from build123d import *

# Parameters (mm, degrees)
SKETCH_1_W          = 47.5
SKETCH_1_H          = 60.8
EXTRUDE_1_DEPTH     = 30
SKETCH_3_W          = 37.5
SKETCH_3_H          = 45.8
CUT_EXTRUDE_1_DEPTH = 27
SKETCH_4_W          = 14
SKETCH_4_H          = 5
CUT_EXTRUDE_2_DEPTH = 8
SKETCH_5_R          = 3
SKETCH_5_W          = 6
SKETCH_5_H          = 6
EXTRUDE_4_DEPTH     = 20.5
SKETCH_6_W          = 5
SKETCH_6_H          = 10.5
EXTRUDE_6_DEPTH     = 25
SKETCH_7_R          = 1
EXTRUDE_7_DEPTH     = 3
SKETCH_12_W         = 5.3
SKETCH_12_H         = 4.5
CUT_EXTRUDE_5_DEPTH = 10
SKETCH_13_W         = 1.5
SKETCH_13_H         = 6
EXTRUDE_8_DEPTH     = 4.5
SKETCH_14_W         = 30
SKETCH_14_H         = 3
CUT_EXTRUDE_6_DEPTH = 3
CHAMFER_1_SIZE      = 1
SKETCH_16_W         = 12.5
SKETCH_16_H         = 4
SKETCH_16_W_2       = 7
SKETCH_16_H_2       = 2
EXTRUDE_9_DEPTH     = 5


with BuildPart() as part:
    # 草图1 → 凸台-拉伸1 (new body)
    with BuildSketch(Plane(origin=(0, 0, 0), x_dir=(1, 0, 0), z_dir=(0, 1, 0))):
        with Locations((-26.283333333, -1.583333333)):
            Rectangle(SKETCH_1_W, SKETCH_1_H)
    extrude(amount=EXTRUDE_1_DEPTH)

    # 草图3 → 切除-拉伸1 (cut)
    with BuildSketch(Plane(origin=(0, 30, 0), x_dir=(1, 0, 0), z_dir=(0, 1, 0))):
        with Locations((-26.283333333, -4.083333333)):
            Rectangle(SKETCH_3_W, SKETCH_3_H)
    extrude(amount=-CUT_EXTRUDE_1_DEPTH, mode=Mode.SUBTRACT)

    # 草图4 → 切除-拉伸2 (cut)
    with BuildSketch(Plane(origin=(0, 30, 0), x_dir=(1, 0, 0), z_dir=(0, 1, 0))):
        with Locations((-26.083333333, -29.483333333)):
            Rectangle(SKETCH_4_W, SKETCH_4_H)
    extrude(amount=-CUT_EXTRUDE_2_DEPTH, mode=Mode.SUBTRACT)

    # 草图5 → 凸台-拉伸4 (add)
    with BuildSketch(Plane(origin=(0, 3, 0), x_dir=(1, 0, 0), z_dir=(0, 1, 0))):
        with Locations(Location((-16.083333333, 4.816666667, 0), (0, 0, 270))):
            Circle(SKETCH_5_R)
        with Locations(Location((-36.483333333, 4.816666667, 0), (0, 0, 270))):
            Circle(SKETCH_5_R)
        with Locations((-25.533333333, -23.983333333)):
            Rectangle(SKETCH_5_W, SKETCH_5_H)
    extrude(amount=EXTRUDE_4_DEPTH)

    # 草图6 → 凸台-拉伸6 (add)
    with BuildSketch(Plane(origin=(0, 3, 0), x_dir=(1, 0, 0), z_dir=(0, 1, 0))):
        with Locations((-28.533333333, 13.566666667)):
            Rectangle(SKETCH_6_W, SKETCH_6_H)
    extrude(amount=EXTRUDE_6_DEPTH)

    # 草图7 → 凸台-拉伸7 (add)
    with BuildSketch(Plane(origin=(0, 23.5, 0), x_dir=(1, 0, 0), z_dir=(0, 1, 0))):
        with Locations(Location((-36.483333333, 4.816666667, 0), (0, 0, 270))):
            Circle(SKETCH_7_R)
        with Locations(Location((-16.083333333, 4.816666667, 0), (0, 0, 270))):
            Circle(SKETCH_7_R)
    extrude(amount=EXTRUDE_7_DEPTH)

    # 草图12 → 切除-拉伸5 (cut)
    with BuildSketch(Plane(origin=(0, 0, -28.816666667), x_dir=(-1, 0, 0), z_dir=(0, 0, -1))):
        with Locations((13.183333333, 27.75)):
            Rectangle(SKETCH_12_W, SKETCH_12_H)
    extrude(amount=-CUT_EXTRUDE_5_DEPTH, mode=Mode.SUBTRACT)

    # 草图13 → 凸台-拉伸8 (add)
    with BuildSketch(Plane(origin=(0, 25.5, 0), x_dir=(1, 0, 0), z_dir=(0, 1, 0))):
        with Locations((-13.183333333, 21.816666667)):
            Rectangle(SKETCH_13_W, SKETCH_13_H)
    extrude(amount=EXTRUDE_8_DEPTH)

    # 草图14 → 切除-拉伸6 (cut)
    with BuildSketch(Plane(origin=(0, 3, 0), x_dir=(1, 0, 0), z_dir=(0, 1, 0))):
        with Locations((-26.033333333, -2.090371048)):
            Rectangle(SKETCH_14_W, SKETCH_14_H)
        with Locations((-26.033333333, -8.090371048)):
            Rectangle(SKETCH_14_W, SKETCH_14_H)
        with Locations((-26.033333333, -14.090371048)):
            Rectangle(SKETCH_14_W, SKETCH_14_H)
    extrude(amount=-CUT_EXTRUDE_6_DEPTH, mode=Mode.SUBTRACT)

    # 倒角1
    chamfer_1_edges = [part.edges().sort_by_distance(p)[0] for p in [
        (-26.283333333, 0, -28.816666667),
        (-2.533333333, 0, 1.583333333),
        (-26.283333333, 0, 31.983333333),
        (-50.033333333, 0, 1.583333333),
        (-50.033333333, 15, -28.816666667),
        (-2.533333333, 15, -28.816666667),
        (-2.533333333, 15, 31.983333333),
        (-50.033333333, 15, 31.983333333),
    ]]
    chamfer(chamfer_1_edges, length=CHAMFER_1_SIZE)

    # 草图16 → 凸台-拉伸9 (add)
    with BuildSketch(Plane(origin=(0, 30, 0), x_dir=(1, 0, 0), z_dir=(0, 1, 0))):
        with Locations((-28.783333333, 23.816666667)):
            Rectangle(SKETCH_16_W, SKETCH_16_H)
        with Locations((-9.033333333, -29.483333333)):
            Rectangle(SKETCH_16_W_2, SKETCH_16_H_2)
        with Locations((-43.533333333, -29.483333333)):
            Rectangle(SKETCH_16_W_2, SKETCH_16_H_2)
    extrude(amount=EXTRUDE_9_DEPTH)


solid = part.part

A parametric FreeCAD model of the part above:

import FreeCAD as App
import Part
import Sketcher
from FreeCAD import Vector
Q = App.Units.Quantity


def edges_at(feature, points):
    """Names of the edges that pass closest to the given points."""
    edges = feature.Shape.Edges
    near = lambda p: min(range(len(edges)), key=lambda i: edges[i].distToShape(Part.Vertex(*p))[0])
    return sorted({f"Edge{near(p) + 1}" for p in points})

doc = App.newDocument("Part")
body = doc.addObject("PartDesign::Body", "Body")

sketch1 = body.newObject("Sketcher::SketchObject", "Sketch")
sketch1.AttachmentSupport = (doc.getObject("XZ_Plane"), [""])
sketch1.MapMode = "FlatFace"
sketch1.addGeometry([
    Part.LineSegment(Vector(-50, -29, 0), Vector(-50, 32, 0)),
    Part.LineSegment(Vector(-50, 32, 0), Vector(-3, 32, 0)),
    Part.LineSegment(Vector(-3, 32, 0), Vector(-3, -29, 0)),
    Part.LineSegment(Vector(-3, -29, 0), Vector(-50, -29, 0)),
], False)
sketch1.addConstraint([
    Sketcher.Constraint("Coincident", 0, 2, 1, 1),
    Sketcher.Constraint("Coincident", 1, 2, 2, 1),
    Sketcher.Constraint("Coincident", 2, 2, 3, 1),
    Sketcher.Constraint("Coincident", 3, 2, 0, 1),
    Sketcher.Constraint("Vertical", 0),
    Sketcher.Constraint("Horizontal", 1),
    Sketcher.Constraint("Vertical", 2),
    Sketcher.Constraint("Horizontal", 3),
    Sketcher.Constraint("DistanceX", 1, 1, 1, 2, Q("47.5 mm")),
    Sketcher.Constraint("DistanceY", 0, 1, 0, 2, Q("60.8 mm")),
    Sketcher.Constraint("DistanceX", 0, 2, -1, 1, Q("50.033333 mm")),
    Sketcher.Constraint("DistanceY", -1, 1, 0, 2, Q("31.983333 mm")),
])
pad1 = body.newObject("PartDesign::Pad", "Pad")
pad1.Profile = sketch1
pad1.Length = 30
pad1.Reversed = True

sketch2 = body.newObject("Sketcher::SketchObject", "Sketch001")
sketch2.AttachmentSupport = (doc.getObject("XZ_Plane"), [""])
sketch2.MapMode = "FlatFace"
sketch2.AttachmentOffset = App.Placement(Vector(0, 0, -30), App.Rotation())
sketch2.addGeometry([
    Part.LineSegment(Vector(-45, -19, 0), Vector(-45, 27, 0)),
    Part.LineSegment(Vector(-45, 27, 0), Vector(-8, 27, 0)),
    Part.LineSegment(Vector(-8, 27, 0), Vector(-8, -19, 0)),
    Part.LineSegment(Vector(-8, -19, 0), Vector(-45, -19, 0)),
], False)
sketch2.addConstraint([
    Sketcher.Constraint("Coincident", 0, 2, 1, 1),
    Sketcher.Constraint("Coincident", 1, 2, 2, 1),
    Sketcher.Constraint("Coincident", 2, 2, 3, 1),
    Sketcher.Constraint("Coincident", 3, 2, 0, 1),
    Sketcher.Constraint("Vertical", 0),
    Sketcher.Constraint("Horizontal", 1),
    Sketcher.Constraint("Vertical", 2),
    Sketcher.Constraint("Horizontal", 3),
    Sketcher.Constraint("DistanceX", 1, 1, 1, 2, Q("37.5 mm")),
    Sketcher.Constraint("DistanceY", 0, 1, 0, 2, Q("45.8 mm")),
    Sketcher.Constraint("DistanceX", 0, 2, -1, 1, Q("45.033333 mm")),
    Sketcher.Constraint("DistanceY", -1, 1, 0, 2, Q("26.983333 mm")),
])
pocket1 = body.newObject("PartDesign::Pocket", "Pocket")
pocket1.Profile = sketch2
pocket1.Length = 27
pocket1.Reversed = True

sketch3 = body.newObject("Sketcher::SketchObject", "Sketch002")
sketch3.AttachmentSupport = (doc.getObject("XZ_Plane"), [""])
sketch3.MapMode = "FlatFace"
sketch3.AttachmentOffset = App.Placement(Vector(0, 0, -30), App.Rotation())
sketch3.addGeometry([
    Part.LineSegment(Vector(-33, 27, 0), Vector(-33, 32, 0)),
    Part.LineSegment(Vector(-33, 32, 0), Vector(-19, 32, 0)),
    Part.LineSegment(Vector(-19, 32, 0), Vector(-19, 27, 0)),
    Part.LineSegment(Vector(-19, 27, 0), Vector(-33, 27, 0)),
], False)
sketch3.addConstraint([
    Sketcher.Constraint("Coincident", 0, 2, 1, 1),
    Sketcher.Constraint("Coincident", 1, 2, 2, 1),
    Sketcher.Constraint("Coincident", 2, 2, 3, 1),
    Sketcher.Constraint("Coincident", 3, 2, 0, 1),
    Sketcher.Constraint("Vertical", 0),
    Sketcher.Constraint("Horizontal", 1),
    Sketcher.Constraint("Vertical", 2),
    Sketcher.Constraint("Horizontal", 3),
    Sketcher.Constraint("DistanceX", 1, 1, 1, 2, Q("14 mm")),
    Sketcher.Constraint("DistanceY", 0, 1, 0, 2, Q("5 mm")),
    Sketcher.Constraint("DistanceX", 0, 2, -1, 1, Q("33.083333 mm")),
    Sketcher.Constraint("DistanceY", -1, 1, 0, 2, Q("31.983333 mm")),
])
pocket2 = body.newObject("PartDesign::Pocket", "Pocket001")
pocket2.Profile = sketch3
pocket2.Length = 8
pocket2.Reversed = True

sketch4 = body.newObject("Sketcher::SketchObject", "Sketch003")
sketch4.AttachmentSupport = (doc.getObject("XZ_Plane"), [""])
sketch4.MapMode = "FlatFace"
sketch4.AttachmentOffset = App.Placement(Vector(0, 0, -3), App.Rotation())
sketch4.addGeometry([
    Part.Circle(Vector(-16.1, -4.8, 0), Vector(0, 0, 1), 3),
    Part.Circle(Vector(-36.5, -4.8, 0), Vector(0, 0, 1), 3),
    Part.LineSegment(Vector(-28.5, 21, 0), Vector(-28.5, 27, 0)),
    Part.LineSegment(Vector(-28.5, 27, 0), Vector(-22.5, 27, 0)),
    Part.LineSegment(Vector(-22.5, 27, 0), Vector(-22.5, 21, 0)),
    Part.LineSegment(Vector(-22.5, 21, 0), Vector(-28.5, 21, 0)),
], False)
sketch4.addConstraint([
    Sketcher.Constraint("Coincident", 2, 2, 3, 1),
    Sketcher.Constraint("Coincident", 3, 2, 4, 1),
    Sketcher.Constraint("Coincident", 4, 2, 5, 1),
    Sketcher.Constraint("Coincident", 5, 2, 2, 1),
    Sketcher.Constraint("Vertical", 2),
    Sketcher.Constraint("Horizontal", 3),
    Sketcher.Constraint("Vertical", 4),
    Sketcher.Constraint("Horizontal", 5),
    Sketcher.Constraint("Equal", 0, 1),
    Sketcher.Constraint("Horizontal", 0, 3, 1, 3),
    Sketcher.Constraint("Equal", 5, 2),
    Sketcher.Constraint("Diameter", 0, Q("6 mm")),
    Sketcher.Constraint("DistanceX", 3, 1, 3, 2, Q("6 mm")),
    Sketcher.Constraint("DistanceX", 1, 3, 0, 3, Q("20.4 mm")),
    Sketcher.Constraint("DistanceY", 1, 3, 2, 2, Q("31.8 mm")),
    Sketcher.Constraint("DistanceX", 1, 3, 2, 2, Q("7.95 mm")),
    Sketcher.Constraint("DistanceX", 0, 3, -1, 1, Q("16.083333 mm")),
    Sketcher.Constraint("DistanceY", 0, 3, -1, 1, Q("4.816667 mm")),
])
pad2 = body.newObject("PartDesign::Pad", "Pad001")
pad2.Profile = sketch4
pad2.Length = 20.5
pad2.Reversed = True

sketch5 = body.newObject("Sketcher::SketchObject", "Sketch004")
sketch5.AttachmentSupport = (doc.getObject("XZ_Plane"), [""])
sketch5.MapMode = "FlatFace"
sketch5.AttachmentOffset = App.Placement(Vector(0, 0, -3), App.Rotation())
sketch5.addGeometry([
    Part.LineSegment(Vector(-31, -19, 0), Vector(-31, -8, 0)),
    Part.LineSegment(Vector(-31, -8, 0), Vector(-26, -8, 0)),
    Part.LineSegment(Vector(-26, -8, 0), Vector(-26, -19, 0)),
    Part.LineSegment(Vector(-26, -19, 0), Vector(-31, -19, 0)),
], False)
sketch5.addConstraint([
    Sketcher.Constraint("Coincident", 0, 2, 1, 1),
    Sketcher.Constraint("Coincident", 1, 2, 2, 1),
    Sketcher.Constraint("Coincident", 2, 2, 3, 1),
    Sketcher.Constraint("Coincident", 3, 2, 0, 1),
    Sketcher.Constraint("Vertical", 0),
    Sketcher.Constraint("Horizontal", 1),
    Sketcher.Constraint("Vertical", 2),
    Sketcher.Constraint("Horizontal", 3),
    Sketcher.Constraint("DistanceX", 1, 1, 1, 2, Q("5 mm")),
    Sketcher.Constraint("DistanceY", 0, 1, 0, 2, Q("10.5 mm")),
    Sketcher.Constraint("DistanceX", 0, 2, -1, 1, Q("31.033333 mm")),
    Sketcher.Constraint("DistanceY", 0, 2, -1, 1, Q("8.316667 mm")),
])
pad3 = body.newObject("PartDesign::Pad", "Pad002")
pad3.Profile = sketch5
pad3.Length = 25
pad3.Reversed = True

sketch6 = body.newObject("Sketcher::SketchObject", "Sketch005")
sketch6.AttachmentSupport = (doc.getObject("XZ_Plane"), [""])
sketch6.MapMode = "FlatFace"
sketch6.AttachmentOffset = App.Placement(Vector(0, 0, -23.5), App.Rotation())
sketch6.addGeometry([
    Part.Circle(Vector(-36.5, -4.8, 0), Vector(0, 0, 1), 1),
    Part.Circle(Vector(-16.1, -4.8, 0), Vector(0, 0, 1), 1),
], False)
sketch6.addConstraint([
    Sketcher.Constraint("Equal", 0, 1),
    Sketcher.Constraint("Horizontal", 0, 3, 1, 3),
    Sketcher.Constraint("Diameter", 0, Q("2 mm")),
    Sketcher.Constraint("DistanceX", 0, 3, 1, 3, Q("20.4 mm")),
    Sketcher.Constraint("DistanceX", 0, 3, -1, 1, Q("36.483333 mm")),
    Sketcher.Constraint("DistanceY", 0, 3, -1, 1, Q("4.816667 mm")),
])
pad4 = body.newObject("PartDesign::Pad", "Pad003")
pad4.Profile = sketch6
pad4.Length = 3
pad4.Reversed = True

sketch7 = body.newObject("Sketcher::SketchObject", "Sketch006")
sketch7.AttachmentSupport = (doc.getObject("XY_Plane"), [""])
sketch7.MapMode = "FlatFace"
sketch7.AttachmentOffset = App.Placement(Vector(0, 0, -28.816667), App.Rotation())
sketch7.addGeometry([
    Part.LineSegment(Vector(-10.5, 30, 0), Vector(-10.5, 25.5, 0)),
    Part.LineSegment(Vector(-10.5, 25.5, 0), Vector(-15.8, 25.5, 0)),
    Part.LineSegment(Vector(-15.8, 25.5, 0), Vector(-15.8, 30, 0)),
    Part.LineSegment(Vector(-15.8, 30, 0), Vector(-10.5, 30, 0)),
], False)
sketch7.addConstraint([
    Sketcher.Constraint("Coincident", 0, 2, 1, 1),
    Sketcher.Constraint("Coincident", 1, 2, 2, 1),
    Sketcher.Constraint("Coincident", 2, 2, 3, 1),
    Sketcher.Constraint("Coincident", 3, 2, 0, 1),
    Sketcher.Constraint("Vertical", 0),
    Sketcher.Constraint("Horizontal", 1),
    Sketcher.Constraint("Vertical", 2),
    Sketcher.Constraint("Horizontal", 3),
    Sketcher.Constraint("DistanceX", 1, 2, 1, 1, Q("5.3 mm")),
    Sketcher.Constraint("DistanceY", 0, 2, 0, 1, Q("4.5 mm")),
    Sketcher.Constraint("DistanceY", -1, 1, 2, 2, Q("30 mm")),
    Sketcher.Constraint("DistanceX", 0, 2, -1, 1, Q("10.533333 mm")),
])
pocket3 = body.newObject("PartDesign::Pocket", "Pocket002")
pocket3.Profile = sketch7
pocket3.Length = 10
pocket3.Reversed = True

sketch8 = body.newObject("Sketcher::SketchObject", "Sketch007")
sketch8.AttachmentSupport = (doc.getObject("XZ_Plane"), [""])
sketch8.MapMode = "FlatFace"
sketch8.AttachmentOffset = App.Placement(Vector(0, 0, -25.5), App.Rotation())
sketch8.addGeometry([
    Part.LineSegment(Vector(-13.9, -24.8, 0), Vector(-13.9, -18.8, 0)),
    Part.LineSegment(Vector(-13.9, -18.8, 0), Vector(-12.4, -18.8, 0)),
    Part.LineSegment(Vector(-12.4, -18.8, 0), Vector(-12.4, -24.8, 0)),
    Part.LineSegment(Vector(-12.4, -24.8, 0), Vector(-13.9, -24.8, 0)),
], False)
sketch8.addConstraint([
    Sketcher.Constraint("Coincident", 0, 2, 1, 1),
    Sketcher.Constraint("Coincident", 1, 2, 2, 1),
    Sketcher.Constraint("Coincident", 2, 2, 3, 1),
    Sketcher.Constraint("Coincident", 3, 2, 0, 1),
    Sketcher.Constraint("Vertical", 0),
    Sketcher.Constraint("Horizontal", 1),
    Sketcher.Constraint("Vertical", 2),
    Sketcher.Constraint("Horizontal", 3),
    Sketcher.Constraint("DistanceY", 0, 1, 0, 2, Q("6 mm")),
    Sketcher.Constraint("DistanceX", 1, 1, 1, 2, Q("1.5 mm")),
    Sketcher.Constraint("DistanceX", 0, 2, -1, 1, Q("13.933333 mm")),
    Sketcher.Constraint("DistanceY", 0, 2, -1, 1, Q("18.816667 mm")),
])
pad5 = body.newObject("PartDesign::Pad", "Pad004")
pad5.Profile = sketch8
pad5.Length = 4.5
pad5.Reversed = True

sketch9 = body.newObject("Sketcher::SketchObject", "Sketch008")
sketch9.AttachmentSupport = (doc.getObject("XZ_Plane"), [""])
sketch9.MapMode = "FlatFace"
sketch9.AttachmentOffset = App.Placement(Vector(0, 0, -3), App.Rotation())
sketch9.addGeometry([
    Part.LineSegment(Vector(-41, 0.6, 0), Vector(-41, 3.6, 0)),
    Part.LineSegment(Vector(-41, 3.6, 0), Vector(-11, 3.6, 0)),
    Part.LineSegment(Vector(-11, 3.6, 0), Vector(-11, 0.6, 0)),
    Part.LineSegment(Vector(-11, 0.6, 0), Vector(-41, 0.6, 0)),
    Part.LineSegment(Vector(-41, 6.6, 0), Vector(-41, 9.6, 0)),
    Part.LineSegment(Vector(-41, 9.6, 0), Vector(-11, 9.6, 0)),
    Part.LineSegment(Vector(-11, 9.6, 0), Vector(-11, 6.6, 0)),
    Part.LineSegment(Vector(-11, 6.6, 0), Vector(-41, 6.6, 0)),
    Part.LineSegment(Vector(-41, 12.6, 0), Vector(-41, 15.6, 0)),
    Part.LineSegment(Vector(-41, 15.6, 0), Vector(-11, 15.6, 0)),
    Part.LineSegment(Vector(-11, 15.6, 0), Vector(-11, 12.6, 0)),
    Part.LineSegment(Vector(-11, 12.6, 0), Vector(-41, 12.6, 0)),
], False)
sketch9.addConstraint([
    Sketcher.Constraint("Coincident", 0, 2, 1, 1),
    Sketcher.Constraint("Coincident", 1, 2, 2, 1),
    Sketcher.Constraint("Coincident", 2, 2, 3, 1),
    Sketcher.Constraint("Coincident", 3, 2, 0, 1),
    Sketcher.Constraint("Coincident", 4, 2, 5, 1),
    Sketcher.Constraint("Coincident", 5, 2, 6, 1),
    Sketcher.Constraint("Coincident", 6, 2, 7, 1),
    Sketcher.Constraint("Coincident", 7, 2, 4, 1),
    Sketcher.Constraint("Coincident", 8, 2, 9, 1),
    Sketcher.Constraint("Coincident", 9, 2, 10, 1),
    Sketcher.Constraint("Coincident", 10, 2, 11, 1),
    Sketcher.Constraint("Coincident", 11, 2, 8, 1),
    Sketcher.Constraint("Vertical", 0),
    Sketcher.Constraint("Horizontal", 1),
    Sketcher.Constraint("Vertical", 2),
    Sketcher.Constraint("Horizontal", 3),
    Sketcher.Constraint("Vertical", 4),
    Sketcher.Constraint("Horizontal", 5),
    Sketcher.Constraint("Vertical", 6),
    Sketcher.Constraint("Horizontal", 7),
    Sketcher.Constraint("Vertical", 8),
    Sketcher.Constraint("Horizontal", 9),
    Sketcher.Constraint("Vertical", 10),
    Sketcher.Constraint("Horizontal", 11),
    Sketcher.Constraint("Vertical", 3, 2, 4, 2),
    Sketcher.Constraint("Vertical", 2, 2, 5, 2),
    Sketcher.Constraint("Vertical", 7, 2, 8, 2),
    Sketcher.Constraint("Vertical", 6, 2, 9, 2),
    Sketcher.Constraint("Equal", 2, 4),
    Sketcher.Constraint("Equal", 6, 8),
    Sketcher.Constraint("DistanceX", 1, 1, 1, 2, Q("30 mm")),
    Sketcher.Constraint("DistanceY", 0, 1, 0, 2, Q("3 mm")),
    Sketcher.Constraint("DistanceY", 0, 2, 4, 2, Q("6 mm")),
    Sketcher.Constraint("DistanceY", 4, 2, 8, 2, Q("6 mm")),
    Sketcher.Constraint("DistanceY", -1, 1, 0, 2, Q("3.590371 mm")),
    Sketcher.Constraint("DistanceX", 0, 2, -1, 1, Q("41.033333 mm")),
])
pocket4 = body.newObject("PartDesign::Pocket", "Pocket003")
pocket4.Profile = sketch9
pocket4.Length = 3
pocket4.Reversed = True
doc.recompute()

chamfer = body.newObject("PartDesign::Chamfer", "Chamfer")
chamfer.Base = (pocket4, edges_at(pocket4, [
    (-26.283, 0, -28.817),
    (-2.533, 0, 1.583),
    (-26.283, 0, 31.983),
    (-50.033, 0, 1.583),
    (-50.033, 15, -28.817),
    (-2.533, 15, -28.817),
    (-2.533, 15, 31.983),
    (-50.033, 15, 31.983),
]))
chamfer.Size = 1

sketch10 = body.newObject("Sketcher::SketchObject", "Sketch009")
sketch10.AttachmentSupport = (doc.getObject("XZ_Plane"), [""])
sketch10.MapMode = "FlatFace"
sketch10.AttachmentOffset = App.Placement(Vector(0, 0, -30), App.Rotation())
sketch10.addGeometry([
    Part.LineSegment(Vector(-35, -25.8, 0), Vector(-35, -21.8, 0)),
    Part.LineSegment(Vector(-35, -21.8, 0), Vector(-22.5, -21.8, 0)),
    Part.LineSegment(Vector(-22.5, -21.8, 0), Vector(-22.5, -25.8, 0)),
    Part.LineSegment(Vector(-22.5, -25.8, 0), Vector(-35, -25.8, 0)),
    Part.LineSegment(Vector(-12.5, 28.5, 0), Vector(-12.5, 30.5, 0)),
    Part.LineSegment(Vector(-12.5, 30.5, 0), Vector(-5.5, 30.5, 0)),
    Part.LineSegment(Vector(-5.5, 30.5, 0), Vector(-5.5, 28.5, 0)),
    Part.LineSegment(Vector(-5.5, 28.5, 0), Vector(-12.5, 28.5, 0)),
    Part.LineSegment(Vector(-47, 28.5, 0), Vector(-47, 30.5, 0)),
    Part.LineSegment(Vector(-47, 30.5, 0), Vector(-40, 30.5, 0)),
    Part.LineSegment(Vector(-40, 30.5, 0), Vector(-40, 28.5, 0)),
    Part.LineSegment(Vector(-40, 28.5, 0), Vector(-47, 28.5, 0)),
], False)
sketch10.addConstraint([
    Sketcher.Constraint("Coincident", 0, 2, 1, 1),
    Sketcher.Constraint("Coincident", 1, 2, 2, 1),
    Sketcher.Constraint("Coincident", 2, 2, 3, 1),
    Sketcher.Constraint("Coincident", 3, 2, 0, 1),
    Sketcher.Constraint("Coincident", 4, 2, 5, 1),
    Sketcher.Constraint("Coincident", 5, 2, 6, 1),
    Sketcher.Constraint("Coincident", 6, 2, 7, 1),
    Sketcher.Constraint("Coincident", 7, 2, 4, 1),
    Sketcher.Constraint("Coincident", 8, 2, 9, 1),
    Sketcher.Constraint("Coincident", 9, 2, 10, 1),
    Sketcher.Constraint("Coincident", 10, 2, 11, 1),
    Sketcher.Constraint("Coincident", 11, 2, 8, 1),
    Sketcher.Constraint("Vertical", 0),
    Sketcher.Constraint("Horizontal", 1),
    Sketcher.Constraint("Vertical", 2),
    Sketcher.Constraint("Horizontal", 3),
    Sketcher.Constraint("Vertical", 4),
    Sketcher.Constraint("Horizontal", 5),
    Sketcher.Constraint("Vertical", 6),
    Sketcher.Constraint("Horizontal", 7),
    Sketcher.Constraint("Vertical", 8),
    Sketcher.Constraint("Horizontal", 9),
    Sketcher.Constraint("Vertical", 10),
    Sketcher.Constraint("Horizontal", 11),
    Sketcher.Constraint("Horizontal", 5, 2, 8, 2),
    Sketcher.Constraint("Horizontal", 7, 2, 10, 2),
    Sketcher.Constraint("Equal", 7, 9),
    Sketcher.Constraint("DistanceX", 5, 1, 5, 2, Q("7 mm")),
    Sketcher.Constraint("DistanceY", 0, 1, 0, 2, Q("4 mm")),
    Sketcher.Constraint("DistanceY", 4, 1, 4, 2, Q("2 mm")),
    Sketcher.Constraint("DistanceX", 1, 1, 1, 2, Q("12.5 mm")),
    Sketcher.Constraint("DistanceX", 1, 2, 4, 2, Q("10 mm")),
    Sketcher.Constraint("DistanceX", 8, 2, 0, 2, Q("12 mm")),
    Sketcher.Constraint("DistanceY", 1, 2, 4, 2, Q("52.3 mm")),
    Sketcher.Constraint("DistanceX", 0, 2, -1, 1, Q("35.033333 mm")),
    Sketcher.Constraint("DistanceY", 0, 2, -1, 1, Q("21.816667 mm")),
])
pad6 = body.newObject("PartDesign::Pad", "Pad005")
pad6.Profile = sketch10
pad6.Length = 5
pad6.Reversed = True

doc.recompute()
